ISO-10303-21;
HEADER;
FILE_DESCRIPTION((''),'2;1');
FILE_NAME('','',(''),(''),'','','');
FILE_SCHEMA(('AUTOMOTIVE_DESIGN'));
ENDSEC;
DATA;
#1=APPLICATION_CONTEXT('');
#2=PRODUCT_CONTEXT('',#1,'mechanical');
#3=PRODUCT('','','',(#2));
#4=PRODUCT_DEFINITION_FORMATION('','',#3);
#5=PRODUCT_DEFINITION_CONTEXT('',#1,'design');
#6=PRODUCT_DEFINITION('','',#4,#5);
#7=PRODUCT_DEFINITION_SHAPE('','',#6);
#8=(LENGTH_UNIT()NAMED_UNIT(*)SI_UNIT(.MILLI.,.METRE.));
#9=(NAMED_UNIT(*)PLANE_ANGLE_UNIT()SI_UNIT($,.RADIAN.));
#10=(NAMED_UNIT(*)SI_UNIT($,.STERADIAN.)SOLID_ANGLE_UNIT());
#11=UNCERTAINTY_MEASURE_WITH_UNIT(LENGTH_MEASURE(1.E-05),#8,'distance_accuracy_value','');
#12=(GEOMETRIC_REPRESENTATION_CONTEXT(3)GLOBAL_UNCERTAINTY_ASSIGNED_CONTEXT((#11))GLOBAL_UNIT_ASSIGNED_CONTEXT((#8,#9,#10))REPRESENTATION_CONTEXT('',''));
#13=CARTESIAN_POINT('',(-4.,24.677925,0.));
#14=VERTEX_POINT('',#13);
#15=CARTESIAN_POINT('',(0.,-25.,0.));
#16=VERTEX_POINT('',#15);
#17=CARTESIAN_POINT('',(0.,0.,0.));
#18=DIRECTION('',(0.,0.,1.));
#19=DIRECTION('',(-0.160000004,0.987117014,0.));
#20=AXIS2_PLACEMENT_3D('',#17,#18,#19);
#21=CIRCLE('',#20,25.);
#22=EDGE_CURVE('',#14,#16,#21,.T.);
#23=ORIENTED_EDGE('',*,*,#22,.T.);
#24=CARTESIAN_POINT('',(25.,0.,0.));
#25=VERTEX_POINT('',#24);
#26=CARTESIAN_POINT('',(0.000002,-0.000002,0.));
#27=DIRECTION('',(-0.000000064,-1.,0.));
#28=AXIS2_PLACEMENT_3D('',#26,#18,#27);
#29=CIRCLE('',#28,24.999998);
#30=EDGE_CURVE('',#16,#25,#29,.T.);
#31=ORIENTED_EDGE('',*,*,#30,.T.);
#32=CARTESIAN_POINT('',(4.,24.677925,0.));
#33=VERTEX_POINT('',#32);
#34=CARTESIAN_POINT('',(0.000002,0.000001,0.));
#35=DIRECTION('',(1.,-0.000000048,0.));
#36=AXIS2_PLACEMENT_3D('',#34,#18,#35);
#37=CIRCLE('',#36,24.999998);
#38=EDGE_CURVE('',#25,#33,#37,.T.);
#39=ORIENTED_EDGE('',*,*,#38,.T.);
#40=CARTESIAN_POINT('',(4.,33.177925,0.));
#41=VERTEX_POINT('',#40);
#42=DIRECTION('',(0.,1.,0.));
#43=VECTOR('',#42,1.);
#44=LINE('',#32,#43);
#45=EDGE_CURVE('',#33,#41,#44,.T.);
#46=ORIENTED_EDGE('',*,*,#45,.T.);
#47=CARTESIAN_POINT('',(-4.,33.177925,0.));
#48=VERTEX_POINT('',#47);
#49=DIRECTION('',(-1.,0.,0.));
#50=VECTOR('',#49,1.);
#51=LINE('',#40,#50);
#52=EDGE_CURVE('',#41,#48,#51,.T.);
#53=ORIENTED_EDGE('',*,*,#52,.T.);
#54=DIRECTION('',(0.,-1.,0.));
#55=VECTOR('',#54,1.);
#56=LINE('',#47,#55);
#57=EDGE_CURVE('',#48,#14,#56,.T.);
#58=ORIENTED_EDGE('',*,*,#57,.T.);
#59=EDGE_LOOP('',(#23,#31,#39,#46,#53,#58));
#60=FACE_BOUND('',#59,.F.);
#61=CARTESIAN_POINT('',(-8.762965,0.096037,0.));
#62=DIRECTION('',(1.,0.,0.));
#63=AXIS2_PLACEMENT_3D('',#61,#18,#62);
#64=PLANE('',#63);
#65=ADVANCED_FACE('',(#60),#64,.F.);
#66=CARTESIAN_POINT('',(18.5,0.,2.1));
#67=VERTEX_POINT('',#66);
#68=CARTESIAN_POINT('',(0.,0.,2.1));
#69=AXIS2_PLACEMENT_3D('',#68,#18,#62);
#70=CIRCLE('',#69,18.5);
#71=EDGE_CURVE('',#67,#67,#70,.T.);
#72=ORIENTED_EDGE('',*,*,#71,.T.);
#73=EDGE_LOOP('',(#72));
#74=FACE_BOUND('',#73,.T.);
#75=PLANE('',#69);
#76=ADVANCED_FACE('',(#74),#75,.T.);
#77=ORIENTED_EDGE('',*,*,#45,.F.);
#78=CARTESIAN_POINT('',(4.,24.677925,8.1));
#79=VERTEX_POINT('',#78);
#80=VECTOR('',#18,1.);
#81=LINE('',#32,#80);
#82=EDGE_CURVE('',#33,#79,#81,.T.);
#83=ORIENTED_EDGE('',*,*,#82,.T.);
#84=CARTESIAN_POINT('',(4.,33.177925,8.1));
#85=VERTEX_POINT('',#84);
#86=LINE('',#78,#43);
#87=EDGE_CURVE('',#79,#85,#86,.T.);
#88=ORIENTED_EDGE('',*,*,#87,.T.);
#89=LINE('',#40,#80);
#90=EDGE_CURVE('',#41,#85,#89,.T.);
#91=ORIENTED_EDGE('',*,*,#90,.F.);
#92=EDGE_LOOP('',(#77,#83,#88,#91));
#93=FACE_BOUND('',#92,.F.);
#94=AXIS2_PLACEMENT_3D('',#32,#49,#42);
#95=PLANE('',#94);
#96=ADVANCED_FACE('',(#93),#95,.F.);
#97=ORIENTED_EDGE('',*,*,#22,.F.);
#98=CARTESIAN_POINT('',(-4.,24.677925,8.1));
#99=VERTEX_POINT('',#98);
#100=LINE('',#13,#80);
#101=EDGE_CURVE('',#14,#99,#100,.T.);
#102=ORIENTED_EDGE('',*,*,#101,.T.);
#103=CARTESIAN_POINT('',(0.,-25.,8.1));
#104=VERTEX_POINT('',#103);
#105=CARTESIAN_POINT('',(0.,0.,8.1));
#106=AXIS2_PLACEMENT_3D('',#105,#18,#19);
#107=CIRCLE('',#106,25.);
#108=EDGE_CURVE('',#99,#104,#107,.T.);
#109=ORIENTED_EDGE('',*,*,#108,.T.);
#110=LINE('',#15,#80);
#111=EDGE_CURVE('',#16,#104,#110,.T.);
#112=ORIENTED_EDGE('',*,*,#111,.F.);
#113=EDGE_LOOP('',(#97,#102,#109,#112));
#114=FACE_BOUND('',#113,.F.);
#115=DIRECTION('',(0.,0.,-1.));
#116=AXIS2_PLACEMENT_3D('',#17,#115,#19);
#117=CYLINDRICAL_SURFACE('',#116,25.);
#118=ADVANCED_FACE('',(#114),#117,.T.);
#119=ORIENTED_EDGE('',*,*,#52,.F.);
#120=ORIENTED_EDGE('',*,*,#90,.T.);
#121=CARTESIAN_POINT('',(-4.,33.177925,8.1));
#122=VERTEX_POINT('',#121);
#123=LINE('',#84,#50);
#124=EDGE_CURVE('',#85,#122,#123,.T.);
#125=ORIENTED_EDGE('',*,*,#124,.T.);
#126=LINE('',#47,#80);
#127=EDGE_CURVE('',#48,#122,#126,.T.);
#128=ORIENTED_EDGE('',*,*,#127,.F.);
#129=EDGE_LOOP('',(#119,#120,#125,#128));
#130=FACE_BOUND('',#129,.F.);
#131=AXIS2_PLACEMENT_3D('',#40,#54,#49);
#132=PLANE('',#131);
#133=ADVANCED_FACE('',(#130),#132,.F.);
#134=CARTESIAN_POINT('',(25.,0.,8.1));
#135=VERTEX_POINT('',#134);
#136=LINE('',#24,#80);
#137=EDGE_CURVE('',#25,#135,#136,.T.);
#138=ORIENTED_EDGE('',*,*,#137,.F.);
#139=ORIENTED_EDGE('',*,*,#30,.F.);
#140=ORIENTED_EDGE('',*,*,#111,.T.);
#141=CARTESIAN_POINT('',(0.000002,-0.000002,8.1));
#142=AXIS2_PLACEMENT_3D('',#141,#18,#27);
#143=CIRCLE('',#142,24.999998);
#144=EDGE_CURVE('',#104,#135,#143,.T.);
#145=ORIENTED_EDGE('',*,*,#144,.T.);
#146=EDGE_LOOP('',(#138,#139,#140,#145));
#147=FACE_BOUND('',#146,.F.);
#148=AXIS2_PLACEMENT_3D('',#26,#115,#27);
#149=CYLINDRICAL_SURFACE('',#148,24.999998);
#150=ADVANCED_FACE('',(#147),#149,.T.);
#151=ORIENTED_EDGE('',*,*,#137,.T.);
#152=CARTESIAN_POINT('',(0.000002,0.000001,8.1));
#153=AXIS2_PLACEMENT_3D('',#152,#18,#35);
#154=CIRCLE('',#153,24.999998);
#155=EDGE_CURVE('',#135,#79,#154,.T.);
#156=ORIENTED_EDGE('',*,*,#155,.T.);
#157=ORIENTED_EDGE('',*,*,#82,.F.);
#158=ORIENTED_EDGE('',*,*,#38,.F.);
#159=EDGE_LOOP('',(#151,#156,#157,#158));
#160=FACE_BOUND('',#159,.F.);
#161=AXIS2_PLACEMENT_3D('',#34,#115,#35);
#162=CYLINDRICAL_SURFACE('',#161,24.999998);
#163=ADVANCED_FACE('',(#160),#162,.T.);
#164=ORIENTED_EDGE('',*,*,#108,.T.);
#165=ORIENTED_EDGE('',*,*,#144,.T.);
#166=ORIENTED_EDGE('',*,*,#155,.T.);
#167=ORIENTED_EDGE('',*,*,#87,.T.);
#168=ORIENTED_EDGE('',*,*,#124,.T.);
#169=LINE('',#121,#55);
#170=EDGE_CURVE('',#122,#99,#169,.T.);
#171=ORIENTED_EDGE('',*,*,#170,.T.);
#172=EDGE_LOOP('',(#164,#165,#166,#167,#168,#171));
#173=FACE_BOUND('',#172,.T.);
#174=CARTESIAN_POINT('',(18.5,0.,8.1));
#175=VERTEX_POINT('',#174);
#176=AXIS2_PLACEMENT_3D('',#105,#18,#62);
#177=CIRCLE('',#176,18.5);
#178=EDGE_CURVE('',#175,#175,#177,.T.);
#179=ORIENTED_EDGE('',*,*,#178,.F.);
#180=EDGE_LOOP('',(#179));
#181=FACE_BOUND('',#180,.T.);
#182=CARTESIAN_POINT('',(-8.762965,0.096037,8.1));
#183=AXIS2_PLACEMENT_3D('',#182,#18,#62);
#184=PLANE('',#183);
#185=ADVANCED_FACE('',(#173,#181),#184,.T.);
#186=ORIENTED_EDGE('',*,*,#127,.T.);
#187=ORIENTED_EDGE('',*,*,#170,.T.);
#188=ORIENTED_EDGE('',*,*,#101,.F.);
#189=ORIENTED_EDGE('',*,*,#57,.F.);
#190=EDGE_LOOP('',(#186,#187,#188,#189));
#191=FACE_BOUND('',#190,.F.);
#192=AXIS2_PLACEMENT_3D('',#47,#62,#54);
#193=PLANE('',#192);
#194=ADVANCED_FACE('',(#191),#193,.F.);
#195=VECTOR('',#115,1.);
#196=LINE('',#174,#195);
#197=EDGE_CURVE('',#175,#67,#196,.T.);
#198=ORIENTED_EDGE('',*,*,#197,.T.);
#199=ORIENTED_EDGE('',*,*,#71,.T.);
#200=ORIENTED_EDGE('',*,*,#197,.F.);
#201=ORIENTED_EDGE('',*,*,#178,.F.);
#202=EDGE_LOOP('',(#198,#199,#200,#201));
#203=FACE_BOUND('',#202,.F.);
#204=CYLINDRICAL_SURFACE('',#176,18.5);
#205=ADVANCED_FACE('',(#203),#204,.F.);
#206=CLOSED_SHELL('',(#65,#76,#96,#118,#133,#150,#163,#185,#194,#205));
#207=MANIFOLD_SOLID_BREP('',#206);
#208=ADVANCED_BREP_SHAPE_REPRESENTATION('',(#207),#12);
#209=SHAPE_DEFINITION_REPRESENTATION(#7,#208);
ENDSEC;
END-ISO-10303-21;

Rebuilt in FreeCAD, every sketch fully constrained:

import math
import FreeCAD as App
import Part
import Sketcher
from FreeCAD import Vector

doc = App.newDocument("Part")
body = doc.addObject("PartDesign::Body", "Body")

# Sketch on XY plane
sketch1 = body.newObject("Sketcher::SketchObject", "Sketch")
sketch1.AttachmentSupport = (doc.getObject("XY_Plane"), [""])
sketch1.MapMode = "FlatFace"
sketch1.addGeometry([
    Part.ArcOfCircle(Part.Circle(Vector(0, 0, 0), Vector(0, 0, 1), 25), math.radians(99), math.radians(270)),  # 0
    Part.ArcOfCircle(Part.Circle(Vector(0, 0, 0), Vector(0, 0, 1), 25), math.radians(-90), math.radians(0)),  # 1
    Part.ArcOfCircle(Part.Circle(Vector(0, 0, 0), Vector(0, 0, 1), 25), math.radians(0), math.radians(81)),  # 2
    Part.LineSegment(Vector(4, 25, 0), Vector(4, 33, 0)),  # 3
    Part.LineSegment(Vector(4, 33, 0), Vector(-4, 33, 0)),  # 4
    Part.LineSegment(Vector(-4, 33, 0), Vector(-4, 25, 0)),  # 5
], False)
sketch1.addConstraint([
    Sketcher.Constraint("Tangent", 0, 2, 1, 1),
    Sketcher.Constraint("Tangent", 1, 2, 2, 1),
    Sketcher.Constraint("Coincident", 2, 2, 3, 1),
    Sketcher.Constraint("Coincident", 3, 2, 4, 1),
    Sketcher.Constraint("Coincident", 4, 2, 5, 1),
    Sketcher.Constraint("Coincident", 5, 2, 0, 1),
    Sketcher.Constraint("Vertical", 3),
    Sketcher.Constraint("Horizontal", 4),
    Sketcher.Constraint("Vertical", 5),
    Sketcher.Constraint("Coincident", 0, 3, -1, 1),
    Sketcher.Constraint("Coincident", 2, 3, -1, 1),
    Sketcher.Constraint("PointOnObject", 0, 2, -2),
    Sketcher.Constraint("PointOnObject", 1, 2, -1),
    Sketcher.Constraint("Horizontal", 2, 2, 5, 2),
    Sketcher.Constraint("Radius", 0, 25.0),
    Sketcher.Constraint("DistanceX", 4, 2, 4, 1, 8.0),
    Sketcher.Constraint("DistanceY", 3, 1, 3, 2, 8.5),
])
pad1 = body.newObject("PartDesign::Pad", "Pad")
pad1.Profile = sketch1
pad1.Length = 8.1

# Sketch on XY plane
sketch2 = body.newObject("Sketcher::SketchObject", "Sketch001")
sketch2.AttachmentSupport = (doc.getObject("XY_Plane"), [""])
sketch2.MapMode = "FlatFace"
sketch2.AttachmentOffset = App.Placement(Vector(0, 0, 8.1), App.Rotation())
sketch2.addGeometry(Part.Circle(Vector(0, 0, 0), Vector(0, 0, 1), 18), False)
sketch2.addConstraint([
    Sketcher.Constraint("Coincident", 0, 3, -1, 1),
    Sketcher.Constraint("Diameter", 0, 37.0),
])
pocket1 = body.newObject("PartDesign::Pocket", "Pocket")
pocket1.Profile = sketch2
pocket1.Length = 6

doc.recompute()
